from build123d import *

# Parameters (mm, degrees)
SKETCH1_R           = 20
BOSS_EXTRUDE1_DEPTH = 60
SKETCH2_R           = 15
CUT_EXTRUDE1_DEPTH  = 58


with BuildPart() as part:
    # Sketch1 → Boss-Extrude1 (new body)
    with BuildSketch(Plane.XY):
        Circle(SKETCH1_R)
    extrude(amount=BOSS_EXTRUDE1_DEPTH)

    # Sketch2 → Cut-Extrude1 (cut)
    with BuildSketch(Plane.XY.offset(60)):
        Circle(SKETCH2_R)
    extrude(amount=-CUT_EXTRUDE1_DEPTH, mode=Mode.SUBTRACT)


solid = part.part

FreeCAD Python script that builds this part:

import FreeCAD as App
import Part
import Sketcher
Q = App.Units.Quantity

doc = App.newDocument("Part")
body = doc.addObject("PartDesign::Body", "Body")

sketch1 = body.newObject("Sketcher::SketchObject", "Sketch")
sketch1.AttachmentSupport = (doc.getObject("XY_Plane"), [""])
sketch1.MapMode = "FlatFace"
sketch1.addGeometry(Part.Circle(App.Vector(0, 0, 0), App.Vector(0, 0, 1), 20), False)
sketch1.addConstraint([
    Sketcher.Constraint("Coincident", 0, 3, -1, 1),
    Sketcher.Constraint("Diameter", 0, Q("40 mm")),
])
pad1 = body.newObject("PartDesign::Pad", "Pad")
pad1.Profile = sketch1
pad1.Length = 60

sketch2 = body.newObject("Sketcher::SketchObject", "Sketch001")
sketch2.AttachmentSupport = (doc.getObject("XY_Plane"), [""])
sketch2.MapMode = "FlatFace"
sketch2.AttachmentOffset = App.Placement(App.Vector(0, 0, 60), App.Rotation())
sketch2.addGeometry(Part.Circle(App.Vector(0, 0, 0), App.Vector(0, 0, 1), 15), False)
sketch2.addConstraint([
    Sketcher.Constraint("Coincident", 0, 3, -1, 1),
    Sketcher.Constraint("Diameter", 0, Q("30 mm")),
])
pocket1 = body.newObject("PartDesign::Pocket", "Pocket")
pocket1.Profile = sketch2
pocket1.Length = 58

doc.recompute()
